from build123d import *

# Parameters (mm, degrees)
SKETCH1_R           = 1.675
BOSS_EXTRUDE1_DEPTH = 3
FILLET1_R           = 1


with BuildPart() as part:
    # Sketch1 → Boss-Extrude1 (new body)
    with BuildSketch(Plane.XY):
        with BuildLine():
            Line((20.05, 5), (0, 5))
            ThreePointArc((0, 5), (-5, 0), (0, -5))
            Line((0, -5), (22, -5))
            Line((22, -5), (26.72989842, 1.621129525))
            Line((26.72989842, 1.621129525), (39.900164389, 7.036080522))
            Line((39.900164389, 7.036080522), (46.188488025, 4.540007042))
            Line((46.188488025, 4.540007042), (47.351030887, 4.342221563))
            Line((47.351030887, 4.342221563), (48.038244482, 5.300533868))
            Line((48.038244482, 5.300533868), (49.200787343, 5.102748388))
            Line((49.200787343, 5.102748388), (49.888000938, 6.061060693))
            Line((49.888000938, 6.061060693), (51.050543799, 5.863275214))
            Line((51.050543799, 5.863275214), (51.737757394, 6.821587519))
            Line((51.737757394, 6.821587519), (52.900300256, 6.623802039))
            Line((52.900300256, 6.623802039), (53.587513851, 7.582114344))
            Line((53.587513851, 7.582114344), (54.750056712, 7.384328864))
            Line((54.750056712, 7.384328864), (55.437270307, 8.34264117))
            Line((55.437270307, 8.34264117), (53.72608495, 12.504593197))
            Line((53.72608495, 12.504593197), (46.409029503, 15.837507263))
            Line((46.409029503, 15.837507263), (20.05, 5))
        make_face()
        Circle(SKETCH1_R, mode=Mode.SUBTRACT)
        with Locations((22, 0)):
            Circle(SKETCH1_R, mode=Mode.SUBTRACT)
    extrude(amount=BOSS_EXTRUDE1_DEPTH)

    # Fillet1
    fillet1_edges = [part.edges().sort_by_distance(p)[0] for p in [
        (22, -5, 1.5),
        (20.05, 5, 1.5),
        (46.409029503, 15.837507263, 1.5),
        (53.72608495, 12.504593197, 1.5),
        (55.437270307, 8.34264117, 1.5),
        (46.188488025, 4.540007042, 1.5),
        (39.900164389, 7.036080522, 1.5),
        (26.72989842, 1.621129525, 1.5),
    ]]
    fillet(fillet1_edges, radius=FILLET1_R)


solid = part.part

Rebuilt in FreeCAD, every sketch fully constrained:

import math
import FreeCAD as App
import Part
import Sketcher
from FreeCAD import Vector
Q = App.Units.Quantity


def edges_at(feature, points):
    """Names of the edges that pass closest to the given points."""
    edges = feature.Shape.Edges
    near = lambda p: min(range(len(edges)), key=lambda i: edges[i].distToShape(Part.Vertex(*p))[0])
    return sorted({f"Edge{near(p) + 1}" for p in points})

doc = App.newDocument("Part")
params = doc.addObject("Spreadsheet::Sheet", "Params")
for row, (alias, value) in enumerate([
    ("sketch1_radius", "5 mm"),
    ("sketch1_diameter", "3.35 mm"),
    ("sketch1_width", "22 mm"),
    ("sketch1_length", "4.5 mm"),
    ("sketch1_length2", "28.5 mm"),
    ("pad1_length", "3 mm"),
    ("fillet_radius", "1 mm"),
], start=1):
    params.set(f"A{row}", alias)
    params.set(f"B{row}", "=" + value)
    params.setAlias(f"B{row}", alias)

body = doc.addObject("PartDesign::Body", "Body")

# Sketch on XY plane
sketch1 = body.newObject("Sketcher::SketchObject", "Sketch")
sketch1.AttachmentSupport = (doc.getObject("XY_Plane"), [""])
sketch1.MapMode = "FlatFace"
sketch1.addGeometry([
    Part.LineSegment(Vector(20.05, 5, 0), Vector(0, 5, 0)),  # 0
    Part.ArcOfCircle(Part.Circle(Vector(0, 0, 0), Vector(0, 0, 1), 5), math.radians(90), math.radians(270)),  # 1
    Part.LineSegment(Vector(0, -5, 0), Vector(22, -5, 0)),  # 2
    Part.LineSegment(Vector(22, -5, 0), Vector(26.729898, 1.62113, 0)),  # 3
    Part.LineSegment(Vector(26.729898, 1.62113, 0), Vector(39.900164, 7.036081, 0)),  # 4
    Part.LineSegment(Vector(39.900164, 7.036081, 0), Vector(46.188488, 4.540007, 0)),  # 5
    Part.LineSegment(Vector(46.188488, 4.540007, 0), Vector(47.351031, 4.342222, 0)),  # 6
    Part.LineSegment(Vector(47.351031, 4.342222, 0), Vector(48.038244, 5.300534, 0)),  # 7
    Part.LineSegment(Vector(48.038244, 5.300534, 0), Vector(49.200787, 5.102748, 0)),  # 8
    Part.LineSegment(Vector(49.200787, 5.102748, 0), Vector(49.888001, 6.061061, 0)),  # 9
    Part.LineSegment(Vector(49.888001, 6.061061, 0), Vector(51.050544, 5.863275, 0)),  # 10
    Part.LineSegment(Vector(51.050544, 5.863275, 0), Vector(51.737757, 6.821588, 0)),  # 11
    Part.LineSegment(Vector(51.737757, 6.821588, 0), Vector(52.9003, 6.623802, 0)),  # 12
    Part.LineSegment(Vector(52.9003, 6.623802, 0), Vector(53.587514, 7.582114, 0)),  # 13
    Part.LineSegment(Vector(53.587514, 7.582114, 0), Vector(54.750057, 7.384329, 0)),  # 14
    Part.LineSegment(Vector(54.750057, 7.384329, 0), Vector(55.43727, 8.342641, 0)),  # 15
    Part.LineSegment(Vector(55.43727, 8.342641, 0), Vector(53.726085, 12.504593, 0)),  # 16
    Part.LineSegment(Vector(53.726085, 12.504593, 0), Vector(46.40903, 15.837507, 0)),  # 17
    Part.LineSegment(Vector(46.40903, 15.837507, 0), Vector(20.05, 5, 0)),  # 18
    Part.Circle(Vector(0, 0, 0), Vector(0, 0, 1), 1.675),  # 19
    Part.Circle(Vector(22, 0, 0), Vector(0, 0, 1), 1.675),  # 20
], False)
sketch1.addConstraint([
    Sketcher.Constraint("Tangent", 0, 2, 1, 1),
    Sketcher.Constraint("Tangent", 1, 2, 2, 1),
    Sketcher.Constraint("Coincident", 2, 2, 3, 1),
    Sketcher.Constraint("Coincident", 3, 2, 4, 1),
    Sketcher.Constraint("Coincident", 4, 2, 5, 1),
    Sketcher.Constraint("Coincident", 5, 2, 6, 1),
    Sketcher.Constraint("Coincident", 6, 2, 7, 1),
    Sketcher.Constraint("Coincident", 7, 2, 8, 1),
    Sketcher.Constraint("Coincident", 8, 2, 9, 1),
    Sketcher.Constraint("Coincident", 9, 2, 10, 1),
    Sketcher.Constraint("Coincident", 10, 2, 11, 1),
    Sketcher.Constraint("Coincident", 11, 2, 12, 1),
    Sketcher.Constraint("Coincident", 12, 2, 13, 1),
    Sketcher.Constraint("Coincident", 13, 2, 14, 1),
    Sketcher.Constraint("Coincident", 14, 2, 15, 1),
    Sketcher.Constraint("Coincident", 15, 2, 16, 1),
    Sketcher.Constraint("Coincident", 16, 2, 17, 1),
    Sketcher.Constraint("Coincident", 17, 2, 18, 1),
    Sketcher.Constraint("Coincident", 18, 2, 0, 1),
    Sketcher.Constraint("Horizontal", 0),
    Sketcher.Constraint("Horizontal", 2),
    Sketcher.Constraint("Coincident", 1, 3, -1, 1),
    Sketcher.Constraint("Coincident", 19, 3, -1, 1),
    Sketcher.Constraint("Equal", 19, 20),
    Sketcher.Constraint("PointOnObject", 20, 3, -1),
    Sketcher.Constraint("Parallel", 6, 8),
    Sketcher.Constraint("Parallel", 7, 9),
    Sketcher.Constraint("Parallel", 8, 10),
    Sketcher.Constraint("Parallel", 9, 11),
    Sketcher.Constraint("Parallel", 10, 12),
    Sketcher.Constraint("Parallel", 11, 13),
    Sketcher.Constraint("Parallel", 12, 14),
    Sketcher.Constraint("Parallel", 13, 15),
    Sketcher.Constraint("Perpendicular", 4, 16),
    Sketcher.Constraint("Perpendicular", 16, 18),
    Sketcher.Constraint("Vertical", 20, 3, 2, 2),
    Sketcher.Constraint("Equal", 6, 7),
    Sketcher.Constraint("Equal", 7, 8),
    Sketcher.Constraint("Equal", 8, 9),
    Sketcher.Constraint("Equal", 9, 10),
    Sketcher.Constraint("Equal", 10, 11),
    Sketcher.Constraint("Equal", 11, 12),
    Sketcher.Constraint("Equal", 12, 13),
    Sketcher.Constraint("Equal", 13, 14),
    Sketcher.Constraint("Equal", 14, 15),
    Sketcher.Constraint("Radius", 1, 5.0),
    Sketcher.Constraint("Diameter", 19, 3.35),
    Sketcher.Constraint("DistanceX", 2, 1, 2, 2, 22.0),
    Sketcher.Constraint("Distance", 16, 4.5),
    Sketcher.Constraint("Distance", 18, 28.5),
    Sketcher.Constraint("DistanceX", 0, 2, 0, 1, 20.05),
    Sketcher.Constraint("Angle", 4, Q("22.35 deg")),
    Sketcher.Constraint("Angle", 5, Q("-21.65 deg")),
    Sketcher.Constraint("Distance", 4, 14.24),
    Sketcher.Constraint("DistanceX", -1, 1, 9, 2, 49.888001),
    Sketcher.Constraint("DistanceX", -1, 1, 3, 2, 26.729898),
    Sketcher.Constraint("DistanceX", -1, 1, 12, 2, 52.9003),
    Sketcher.Constraint("DistanceY", -1, 1, 3, 2, 1.62113),
    Sketcher.Constraint("DistanceX", -1, 1, 5, 2, 46.188488),
    Sketcher.Constraint("DistanceY", -1, 1, 6, 2, 4.342222),
])
sketch1.setExpression("Constraints[45]", "Params.sketch1_radius")
sketch1.setExpression("Constraints[46]", "Params.sketch1_diameter")
sketch1.setExpression("Constraints[47]", "Params.sketch1_width")
sketch1.setExpression("Constraints[48]", "Params.sketch1_length")
sketch1.setExpression("Constraints[49]", "Params.sketch1_length2")
pad1 = body.newObject("PartDesign::Pad", "Pad")
pad1.Profile = sketch1
pad1.setExpression("Length", "Params.pad1_length")
doc.recompute()

fillet = body.newObject("PartDesign::Fillet", "Fillet")
fillet.Base = (pad1, edges_at(pad1, [
    (22, -5, 1.5),
    (20.05, 5, 1.5),
    (46.409, 15.838, 1.5),
    (53.726, 12.505, 1.5),
    (55.437, 8.343, 1.5),
    (46.188, 4.54, 1.5),
    (39.9, 7.036, 1.5),
    (26.73, 1.621, 1.5),
]))
fillet.setExpression("Radius", "Params.fillet_radius")

doc.recompute()
